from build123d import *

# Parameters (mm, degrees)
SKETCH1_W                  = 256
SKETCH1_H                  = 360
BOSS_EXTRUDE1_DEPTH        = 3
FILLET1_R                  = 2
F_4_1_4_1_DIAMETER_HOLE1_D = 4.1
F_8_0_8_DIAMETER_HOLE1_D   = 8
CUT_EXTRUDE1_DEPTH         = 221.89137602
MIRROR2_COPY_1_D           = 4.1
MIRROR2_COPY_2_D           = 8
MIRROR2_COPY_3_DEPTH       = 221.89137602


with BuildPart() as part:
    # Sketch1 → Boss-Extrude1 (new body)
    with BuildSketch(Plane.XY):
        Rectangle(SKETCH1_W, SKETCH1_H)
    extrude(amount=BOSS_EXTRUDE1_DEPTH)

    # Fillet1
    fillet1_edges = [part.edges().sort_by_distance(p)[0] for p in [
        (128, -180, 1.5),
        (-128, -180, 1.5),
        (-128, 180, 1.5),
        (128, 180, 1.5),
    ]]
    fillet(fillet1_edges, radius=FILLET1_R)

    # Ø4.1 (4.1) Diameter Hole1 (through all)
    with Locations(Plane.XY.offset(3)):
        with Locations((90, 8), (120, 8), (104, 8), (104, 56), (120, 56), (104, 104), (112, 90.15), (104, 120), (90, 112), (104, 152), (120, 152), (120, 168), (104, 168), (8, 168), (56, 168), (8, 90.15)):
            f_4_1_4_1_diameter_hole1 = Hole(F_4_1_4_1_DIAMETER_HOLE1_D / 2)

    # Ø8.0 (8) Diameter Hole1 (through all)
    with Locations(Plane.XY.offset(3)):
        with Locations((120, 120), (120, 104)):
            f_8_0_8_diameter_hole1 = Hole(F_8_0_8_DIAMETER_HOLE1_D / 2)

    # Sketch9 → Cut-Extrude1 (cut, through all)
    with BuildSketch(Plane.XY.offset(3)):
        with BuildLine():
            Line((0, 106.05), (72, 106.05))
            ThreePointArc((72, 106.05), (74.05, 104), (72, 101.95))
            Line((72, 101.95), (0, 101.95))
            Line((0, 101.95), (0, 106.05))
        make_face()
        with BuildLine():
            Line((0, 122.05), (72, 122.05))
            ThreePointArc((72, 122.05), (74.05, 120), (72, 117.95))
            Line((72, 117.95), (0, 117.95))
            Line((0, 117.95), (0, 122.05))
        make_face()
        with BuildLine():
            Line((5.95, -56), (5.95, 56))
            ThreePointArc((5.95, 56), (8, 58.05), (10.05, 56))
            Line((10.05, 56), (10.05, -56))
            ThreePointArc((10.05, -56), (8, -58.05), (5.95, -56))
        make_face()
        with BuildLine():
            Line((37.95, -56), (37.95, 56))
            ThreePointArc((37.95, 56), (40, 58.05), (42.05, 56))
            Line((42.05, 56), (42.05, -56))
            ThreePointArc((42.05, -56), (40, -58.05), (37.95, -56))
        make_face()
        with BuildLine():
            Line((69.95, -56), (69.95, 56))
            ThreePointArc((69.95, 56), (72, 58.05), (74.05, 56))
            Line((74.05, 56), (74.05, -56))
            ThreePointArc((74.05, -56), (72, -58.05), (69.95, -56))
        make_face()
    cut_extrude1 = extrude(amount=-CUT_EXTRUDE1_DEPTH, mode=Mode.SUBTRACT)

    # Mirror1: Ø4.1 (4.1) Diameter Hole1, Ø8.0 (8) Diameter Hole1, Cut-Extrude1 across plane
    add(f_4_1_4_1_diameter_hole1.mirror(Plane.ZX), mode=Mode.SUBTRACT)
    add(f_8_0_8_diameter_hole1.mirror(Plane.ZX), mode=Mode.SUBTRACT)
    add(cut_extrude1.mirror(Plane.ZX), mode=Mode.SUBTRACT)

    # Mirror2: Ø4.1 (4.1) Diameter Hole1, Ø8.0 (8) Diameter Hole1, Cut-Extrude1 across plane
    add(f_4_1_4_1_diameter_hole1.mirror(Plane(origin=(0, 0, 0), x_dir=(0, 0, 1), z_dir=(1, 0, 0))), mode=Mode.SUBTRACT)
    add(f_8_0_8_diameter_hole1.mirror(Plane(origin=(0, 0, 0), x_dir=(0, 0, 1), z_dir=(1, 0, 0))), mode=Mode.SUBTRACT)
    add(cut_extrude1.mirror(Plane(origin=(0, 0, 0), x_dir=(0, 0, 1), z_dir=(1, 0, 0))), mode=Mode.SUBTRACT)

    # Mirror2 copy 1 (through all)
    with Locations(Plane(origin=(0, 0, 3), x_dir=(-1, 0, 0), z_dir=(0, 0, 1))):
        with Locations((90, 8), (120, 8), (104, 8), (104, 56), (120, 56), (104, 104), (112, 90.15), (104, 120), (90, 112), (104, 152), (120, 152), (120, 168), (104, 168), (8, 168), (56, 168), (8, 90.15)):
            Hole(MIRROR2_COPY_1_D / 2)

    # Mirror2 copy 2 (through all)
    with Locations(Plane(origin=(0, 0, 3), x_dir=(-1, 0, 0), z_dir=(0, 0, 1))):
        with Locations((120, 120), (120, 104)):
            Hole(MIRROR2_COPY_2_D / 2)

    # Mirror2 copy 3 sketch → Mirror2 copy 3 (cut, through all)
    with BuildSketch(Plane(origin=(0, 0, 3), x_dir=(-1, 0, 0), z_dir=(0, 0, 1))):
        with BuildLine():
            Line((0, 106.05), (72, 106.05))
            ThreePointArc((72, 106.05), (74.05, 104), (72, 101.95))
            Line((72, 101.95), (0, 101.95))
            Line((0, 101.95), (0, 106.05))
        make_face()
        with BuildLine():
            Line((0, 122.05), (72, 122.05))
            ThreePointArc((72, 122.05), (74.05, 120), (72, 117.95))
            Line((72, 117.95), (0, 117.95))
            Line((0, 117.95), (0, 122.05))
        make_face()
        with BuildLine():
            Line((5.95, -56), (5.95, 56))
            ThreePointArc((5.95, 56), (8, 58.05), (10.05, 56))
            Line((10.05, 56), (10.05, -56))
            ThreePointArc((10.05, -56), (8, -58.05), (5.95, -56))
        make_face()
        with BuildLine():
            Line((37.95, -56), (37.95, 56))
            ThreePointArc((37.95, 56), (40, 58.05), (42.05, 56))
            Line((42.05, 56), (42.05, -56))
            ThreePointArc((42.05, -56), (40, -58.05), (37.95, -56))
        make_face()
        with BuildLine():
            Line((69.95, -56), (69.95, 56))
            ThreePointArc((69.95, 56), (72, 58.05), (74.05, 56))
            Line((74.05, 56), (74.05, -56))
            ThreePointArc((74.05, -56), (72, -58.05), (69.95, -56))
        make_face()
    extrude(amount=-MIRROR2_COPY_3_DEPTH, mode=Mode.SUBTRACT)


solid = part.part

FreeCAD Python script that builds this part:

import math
import FreeCAD as App
import Part
import Sketcher
from FreeCAD import Vector


def edges_at(feature, points):
    """Names of the edges that pass closest to the given points."""
    edges = feature.Shape.Edges
    near = lambda p: min(range(len(edges)), key=lambda i: edges[i].distToShape(Part.Vertex(*p))[0])
    return sorted({f"Edge{near(p) + 1}" for p in points})

doc = App.newDocument("Part")
params = doc.addObject("Spreadsheet::Sheet", "Params")
for row, (alias, value) in enumerate([
    ("sketch1_width", "256 mm"),
    ("sketch1_height", "360 mm"),
    ("pad1_length", "3 mm"),
    ("fillet_radius", "2 mm"),
    ("sketch2_diameter", "4.1 mm"),
    ("hole_diameter", "4.1 mm"),
    ("sketch3_diameter", "8 mm"),
    ("hole2_diameter", "8 mm"),
    ("sketch4_width", "72 mm"),
    ("sketch4_height", "112 mm"),
    ("sketch4_radius", "2.05 mm"),
    ("sketch5_diameter", "4.1 mm"),
    ("hole3_diameter", "4.1 mm"),
    ("sketch6_diameter", "8 mm"),
    ("hole4_diameter", "8 mm"),
    ("sketch7_width", "72 mm"),
    ("sketch7_height", "112 mm"),
    ("sketch7_radius", "2.05 mm"),
], start=1):
    params.set(f"A{row}", alias)
    params.set(f"B{row}", "=" + value)
    params.setAlias(f"B{row}", alias)

body = doc.addObject("PartDesign::Body", "Body")

# Sketch on XY plane
sketch1 = body.newObject("Sketcher::SketchObject", "Sketch")
sketch1.AttachmentSupport = (doc.getObject("XY_Plane"), [""])
sketch1.MapMode = "FlatFace"
sketch1.addGeometry(Part.LineSegment(Vector(-128, 180, 0), Vector(-128, -180, 0)), False)
sketch1.addGeometry(Part.LineSegment(Vector(-128, -180, 0), Vector(128, -180, 0)), False)
sketch1.addGeometry(Part.LineSegment(Vector(128, -180, 0), Vector(128, 180, 0)), False)
sketch1.addGeometry(Part.LineSegment(Vector(128, 180, 0), Vector(-128, 180, 0)), False)
sketch1.addConstraint(Sketcher.Constraint("Coincident", 0, 2, 1, 1))
sketch1.addConstraint(Sketcher.Constraint("Coincident", 1, 2, 2, 1))
sketch1.addConstraint(Sketcher.Constraint("Coincident", 2, 2, 3, 1))
sketch1.addConstraint(Sketcher.Constraint("Coincident", 3, 2, 0, 1))
sketch1.addConstraint(Sketcher.Constraint("Vertical", 0))
sketch1.addConstraint(Sketcher.Constraint("Horizontal", 1))
sketch1.addConstraint(Sketcher.Constraint("Vertical", 2))
sketch1.addConstraint(Sketcher.Constraint("Horizontal", 3))
sketch1.addConstraint(Sketcher.Constraint("Symmetric", 0, 2, 2, 2, -1, 1))
sketch1.addConstraint(Sketcher.Constraint("DistanceX", 1, 1, 1, 2, 256.0))
sketch1.addConstraint(Sketcher.Constraint("DistanceY", 0, 2, 0, 1, 360.0))
sketch1.setExpression("Constraints[9]", "Params.sketch1_width")
sketch1.setExpression("Constraints[10]", "Params.sketch1_height")
pad1 = body.newObject("PartDesign::Pad", "Pad")
pad1.Profile = sketch1
pad1.setExpression("Length", "Params.pad1_length")
doc.recompute()

fillet = body.newObject("PartDesign::Fillet", "Fillet")
fillet.Base = (pad1, edges_at(pad1, [
    (128, -180, 1.5),
    (-128, -180, 1.5),
    (-128, 180, 1.5),
    (128, 180, 1.5),
]))
fillet.setExpression("Radius", "Params.fillet_radius")

# Sketch on XY plane
sketch2 = body.newObject("Sketcher::SketchObject", "Sketch001")
sketch2.AttachmentSupport = (doc.getObject("XY_Plane"), [""])
sketch2.MapMode = "FlatFace"
sketch2.AttachmentOffset = App.Placement(Vector(0, 0, 3), App.Rotation())
sketch2.addGeometry(Part.Circle(Vector(90, 8, 0), Vector(0, 0, 1), 2), False)
sketch2.addGeometry(Part.Circle(Vector(120, 8, 0), Vector(0, 0, 1), 2), False)
sketch2.addGeometry(Part.Circle(Vector(104, 8, 0), Vector(0, 0, 1), 2), False)
sketch2.addGeometry(Part.Circle(Vector(104, 56, 0), Vector(0, 0, 1), 2), False)
sketch2.addGeometry(Part.Circle(Vector(120, 56, 0), Vector(0, 0, 1), 2), False)
sketch2.addGeometry(Part.Circle(Vector(104, 104, 0), Vector(0, 0, 1), 2), False)
sketch2.addGeometry(Part.Circle(Vector(112, 90.2, 0), Vector(0, 0, 1), 2), False)
sketch2.addGeometry(Part.Circle(Vector(104, 120, 0), Vector(0, 0, 1), 2), False)
sketch2.addGeometry(Part.Circle(Vector(90, 112, 0), Vector(0, 0, 1), 2), False)
sketch2.addGeometry(Part.Circle(Vector(104, 152, 0), Vector(0, 0, 1), 2), False)
sketch2.addGeometry(Part.Circle(Vector(120, 152, 0), Vector(0, 0, 1), 2), False)
sketch2.addGeometry(Part.Circle(Vector(120, 168, 0), Vector(0, 0, 1), 2), False)
sketch2.addGeometry(Part.Circle(Vector(104, 168, 0), Vector(0, 0, 1), 2), False)
sketch2.addGeometry(Part.Circle(Vector(8, 168, 0), Vector(0, 0, 1), 2), False)
sketch2.addGeometry(Part.Circle(Vector(56, 168, 0), Vector(0, 0, 1), 2), False)
sketch2.addGeometry(Part.Circle(Vector(8, 90.2, 0), Vector(0, 0, 1), 2), False)
sketch2.addConstraint(Sketcher.Constraint("Equal", 0, 1))
sketch2.addConstraint(Sketcher.Constraint("Equal", 1, 2))
sketch2.addConstraint(Sketcher.Constraint("Equal", 2, 3))
sketch2.addConstraint(Sketcher.Constraint("Equal", 3, 4))
sketch2.addConstraint(Sketcher.Constraint("Equal", 4, 5))
sketch2.addConstraint(Sketcher.Constraint("Equal", 5, 6))
sketch2.addConstraint(Sketcher.Constraint("Equal", 6, 7))
sketch2.addConstraint(Sketcher.Constraint("Equal", 7, 8))
sketch2.addConstraint(Sketcher.Constraint("Equal", 8, 9))
sketch2.addConstraint(Sketcher.Constraint("Equal", 9, 10))
sketch2.addConstraint(Sketcher.Constraint("Equal", 10, 11))
sketch2.addConstraint(Sketcher.Constraint("Equal", 11, 12))
sketch2.addConstraint(Sketcher.Constraint("Equal", 12, 13))
sketch2.addConstraint(Sketcher.Constraint("Equal", 13, 14))
sketch2.addConstraint(Sketcher.Constraint("Equal", 14, 15))
sketch2.addConstraint(Sketcher.Constraint("Horizontal", 0, 3, 1, 3))
sketch2.addConstraint(Sketcher.Constraint("Horizontal", 1, 3, 2, 3))
sketch2.addConstraint(Sketcher.Constraint("Horizontal", 3, 3, 4, 3))
sketch2.addConstraint(Sketcher.Constraint("Horizontal", 9, 3, 10, 3))
sketch2.addConstraint(Sketcher.Constraint("Horizontal", 11, 3, 12, 3))
sketch2.addConstraint(Sketcher.Constraint("Horizontal", 12, 3, 13, 3))
sketch2.addConstraint(Sketcher.Constraint("Horizontal", 13, 3, 14, 3))
sketch2.addConstraint(Sketcher.Constraint("Horizontal", 6, 3, 15, 3))
sketch2.addConstraint(Sketcher.Constraint("Vertical", 2, 3, 3, 3))
sketch2.addConstraint(Sketcher.Constraint("Vertical", 1, 3, 4, 3))
sketch2.addConstraint(Sketcher.Constraint("Vertical", 3, 3, 5, 3))
sketch2.addConstraint(Sketcher.Constraint("Vertical", 5, 3, 7, 3))
sketch2.addConstraint(Sketcher.Constraint("Vertical", 0, 3, 8, 3))
sketch2.addConstraint(Sketcher.Constraint("Vertical", 7, 3, 9, 3))
sketch2.addConstraint(Sketcher.Constraint("Vertical", 4, 3, 10, 3))
sketch2.addConstraint(Sketcher.Constraint("Vertical", 10, 3, 11, 3))
sketch2.addConstraint(Sketcher.Constraint("Vertical", 9, 3, 12, 3))
sketch2.addConstraint(Sketcher.Constraint("Vertical", 13, 3, 15, 3))
sketch2.addConstraint(Sketcher.Constraint("Diameter", 0, 4.1))
sketch2.addConstraint(Sketcher.Constraint("DistanceX", -1, 1, 0, 3, 90.0))
sketch2.addConstraint(Sketcher.Constraint("DistanceY", -1, 1, 0, 3, 8.0))
sketch2.addConstraint(Sketcher.Constraint("DistanceX", -1, 1, 1, 3, 120.0))
sketch2.addConstraint(Sketcher.Constraint("DistanceX", -1, 1, 2, 3, 104.0))
sketch2.addConstraint(Sketcher.Constraint("DistanceY", -1, 1, 3, 3, 56.0))
sketch2.addConstraint(Sketcher.Constraint("DistanceY", -1, 1, 5, 3, 104.0))
sketch2.addConstraint(Sketcher.Constraint("DistanceX", -1, 1, 6, 3, 112.0))
sketch2.addConstraint(Sketcher.Constraint("DistanceY", -1, 1, 7, 3, 120.0))
sketch2.addConstraint(Sketcher.Constraint("DistanceY", -1, 1, 8, 3, 112.0))
sketch2.addConstraint(Sketcher.Constraint("DistanceY", -1, 1, 9, 3, 152.0))
sketch2.addConstraint(Sketcher.Constraint("DistanceY", -1, 1, 11, 3, 168.0))
sketch2.addConstraint(Sketcher.Constraint("DistanceX", -1, 1, 13, 3, 8.0))
sketch2.addConstraint(Sketcher.Constraint("DistanceX", -1, 1, 14, 3, 56.0))
sketch2.addConstraint(Sketcher.Constraint("DistanceY", -1, 1, 6, 3, 90.15))
sketch2.setExpression("Constraints[33]", "Params.sketch2_diameter")
doc.recompute()
hole = body.newObject("PartDesign::Hole", "Hole")
hole.Profile = sketch2
hole.ThreadType = "None"
hole.setExpression("Diameter", "Params.hole_diameter")
hole.DepthType = "ThroughAll"

# Sketch on XY plane
sketch3 = body.newObject("Sketcher::SketchObject", "Sketch002")
sketch3.AttachmentSupport = (doc.getObject("XY_Plane"), [""])
sketch3.MapMode = "FlatFace"
sketch3.AttachmentOffset = App.Placement(Vector(0, 0, 3), App.Rotation())
sketch3.addGeometry(Part.Circle(Vector(120, 120, 0), Vector(0, 0, 1), 4), False)
sketch3.addGeometry(Part.Circle(Vector(120, 104, 0), Vector(0, 0, 1), 4), False)
sketch3.addConstraint(Sketcher.Constraint("Equal", 0, 1))
sketch3.addConstraint(Sketcher.Constraint("Vertical", 0, 3, 1, 3))
sketch3.addConstraint(Sketcher.Constraint("Diameter", 0, 8.0))
sketch3.addConstraint(Sketcher.Constraint("DistanceX", -1, 1, 0, 3, 120.0))
sketch3.addConstraint(Sketcher.Constraint("DistanceY", -1, 1, 0, 3, 120.0))
sketch3.addConstraint(Sketcher.Constraint("DistanceY", -1, 1, 1, 3, 104.0))
sketch3.setExpression("Constraints[2]", "Params.sketch3_diameter")
doc.recompute()
hole2 = body.newObject("PartDesign::Hole", "Hole001")
hole2.Profile = sketch3
hole2.ThreadType = "None"
hole2.setExpression("Diameter", "Params.hole2_diameter")
hole2.DepthType = "ThroughAll"

# Sketch on XY plane
sketch4 = body.newObject("Sketcher::SketchObject", "Sketch003")
sketch4.AttachmentSupport = (doc.getObject("XY_Plane"), [""])
sketch4.MapMode = "FlatFace"
sketch4.AttachmentOffset = App.Placement(Vector(0, 0, 3), App.Rotation())
sketch4.addGeometry(Part.LineSegment(Vector(72, 106, 0), Vector(0, 106, 0)), False)
sketch4.addGeometry(Part.LineSegment(Vector(0, 106, 0), Vector(0, 102, 0)), False)
sketch4.addGeometry(Part.LineSegment(Vector(0, 102, 0), Vector(72, 102, 0)), False)
sketch4.addGeometry(Part.ArcOfCircle(Part.Circle(Vector(72, 104, 0), Vector(0, 0, 1), 2), math.radians(-90), math.radians(90)), False)
sketch4.addGeometry(Part.LineSegment(Vector(72, 122, 0), Vector(0, 122, 0)), False)
sketch4.addGeometry(Part.LineSegment(Vector(0, 122, 0), Vector(0, 118, 0)), False)
sketch4.addGeometry(Part.LineSegment(Vector(0, 118, 0), Vector(72, 118, 0)), False)
sketch4.addGeometry(Part.ArcOfCircle(Part.Circle(Vector(72, 120, 0), Vector(0, 0, 1), 2), math.radians(-90), math.radians(90)), False)
sketch4.addGeometry(Part.LineSegment(Vector(6, 56, 0), Vector(6, -56, 0)), False)
sketch4.addGeometry(Part.ArcOfCircle(Part.Circle(Vector(8, -56, 0), Vector(0, 0, 1), 2), math.radians(180), math.radians(360)), False)
sketch4.addGeometry(Part.LineSegment(Vector(10.1, -56, 0), Vector(10.1, 56, 0)), False)
sketch4.addGeometry(Part.ArcOfCircle(Part.Circle(Vector(8, 56, 0), Vector(0, 0, 1), 2), math.radians(0), math.radians(180)), False)
sketch4.addGeometry(Part.LineSegment(Vector(38, 56, 0), Vector(38, -56, 0)), False)
sketch4.addGeometry(Part.ArcOfCircle(Part.Circle(Vector(40, -56, 0), Vector(0, 0, 1), 2), math.radians(180), math.radians(360)), False)
sketch4.addGeometry(Part.LineSegment(Vector(42, -56, 0), Vector(42, 56, 0)), False)
sketch4.addGeometry(Part.ArcOfCircle(Part.Circle(Vector(40, 56, 0), Vector(0, 0, 1), 2), math.radians(0), math.radians(180)), False)
sketch4.addGeometry(Part.LineSegment(Vector(70, 56, 0), Vector(70, -56, 0)), False)
sketch4.addGeometry(Part.ArcOfCircle(Part.Circle(Vector(72, -56, 0), Vector(0, 0, 1), 2), math.radians(180), math.radians(360)), False)
sketch4.addGeometry(Part.LineSegment(Vector(74, -56, 0), Vector(74, 56, 0)), False)
sketch4.addGeometry(Part.ArcOfCircle(Part.Circle(Vector(72, 56, 0), Vector(0, 0, 1), 2), math.radians(0), math.radians(180)), False)
sketch4.addConstraint(Sketcher.Constraint("Coincident", 0, 2, 1, 1))
sketch4.addConstraint(Sketcher.Constraint("Coincident", 1, 2, 2, 1))
sketch4.addConstraint(Sketcher.Constraint("Tangent", 2, 2, 3, 1))
sketch4.addConstraint(Sketcher.Constraint("Tangent", 3, 2, 0, 1))
sketch4.addConstraint(Sketcher.Constraint("Coincident", 4, 2, 5, 1))
sketch4.addConstraint(Sketcher.Constraint("Coincident", 5, 2, 6, 1))
sketch4.addConstraint(Sketcher.Constraint("Tangent", 6, 2, 7, 1))
sketch4.addConstraint(Sketcher.Constraint("Tangent", 7, 2, 4, 1))
sketch4.addConstraint(Sketcher.Constraint("Tangent", 8, 2, 9, 1))
sketch4.addConstraint(Sketcher.Constraint("Tangent", 9, 2, 10, 1))
sketch4.addConstraint(Sketcher.Constraint("Tangent", 10, 2, 11, 1))
sketch4.addConstraint(Sketcher.Constraint("Tangent", 11, 2, 8, 1))
sketch4.addConstraint(Sketcher.Constraint("Tangent", 12, 2, 13, 1))
sketch4.addConstraint(Sketcher.Constraint("Tangent", 13, 2, 14, 1))
sketch4.addConstraint(Sketcher.Constraint("Tangent", 14, 2, 15, 1))
sketch4.addConstraint(Sketcher.Constraint("Tangent", 15, 2, 12, 1))
sketch4.addConstraint(Sketcher.Constraint("Tangent", 16, 2, 17, 1))
sketch4.addConstraint(Sketcher.Constraint("Tangent", 17, 2, 18, 1))
sketch4.addConstraint(Sketcher.Constraint("Tangent", 18, 2, 19, 1))
sketch4.addConstraint(Sketcher.Constraint("Tangent", 19, 2, 16, 1))
sketch4.addConstraint(Sketcher.Constraint("Horizontal", 0))
sketch4.addConstraint(Sketcher.Constraint("Vertical", 1))
sketch4.addConstraint(Sketcher.Constraint("Horizontal", 2))
sketch4.addConstraint(Sketcher.Constraint("Horizontal", 4))
sketch4.addConstraint(Sketcher.Constraint("Vertical", 5))
sketch4.addConstraint(Sketcher.Constraint("Horizontal", 6))
sketch4.addConstraint(Sketcher.Constraint("Vertical", 8))
sketch4.addConstraint(Sketcher.Constraint("Vertical", 10))
sketch4.addConstraint(Sketcher.Constraint("Vertical", 12))
sketch4.addConstraint(Sketcher.Constraint("Vertical", 14))
sketch4.addConstraint(Sketcher.Constraint("Vertical", 16))
sketch4.addConstraint(Sketcher.Constraint("Vertical", 18))
sketch4.addConstraint(Sketcher.Constraint("Equal", 3, 7))
sketch4.addConstraint(Sketcher.Constraint("Equal", 7, 9))
sketch4.addConstraint(Sketcher.Constraint("Equal", 11, 13))
sketch4.addConstraint(Sketcher.Constraint("Equal", 15, 17))
sketch4.addConstraint(Sketcher.Constraint("PointOnObject", 0, 2, -2))
sketch4.addConstraint(Sketcher.Constraint("PointOnObject", 4, 2, -2))
sketch4.addConstraint(Sketcher.Constraint("Horizontal", 9, 3, 13, 3))
sketch4.addConstraint(Sketcher.Constraint("Horizontal", 11, 3, 15, 3))
sketch4.addConstraint(Sketcher.Constraint("Horizontal", 13, 3, 17, 3))
sketch4.addConstraint(Sketcher.Constraint("Horizontal", 15, 3, 19, 3))
sketch4.addConstraint(Sketcher.Constraint("Vertical", 3, 3, 7, 3))
sketch4.addConstraint(Sketcher.Constraint("Vertical", 7, 3, 17, 3))
sketch4.addConstraint(Sketcher.Constraint("DistanceX", 0, 2, 0, 1, 72.0))
sketch4.addConstraint(Sketcher.Constraint("DistanceY", 8, 2, 8, 1, 112.0))
sketch4.addConstraint(Sketcher.Constraint("Radius", 3, 2.05))
sketch4.addConstraint(Sketcher.Constraint("DistanceY", -1, 1, 3, 3, 104.0))
sketch4.addConstraint(Sketcher.Constraint("DistanceY", -1, 1, 7, 3, 120.0))
sketch4.addConstraint(Sketcher.Constraint("DistanceX", -1, 1, 9, 3, 8.0))
sketch4.addConstraint(Sketcher.Constraint("DistanceY", 9, 3, -1, 1, 56.0))
sketch4.addConstraint(Sketcher.Constraint("DistanceX", -1, 1, 13, 3, 40.0))
sketch4.setExpression("Constraints[44]", "Params.sketch4_width")
sketch4.setExpression("Constraints[45]", "Params.sketch4_height")
sketch4.setExpression("Constraints[46]", "Params.sketch4_radius")
pocket1 = body.newObject("PartDesign::Pocket", "Pocket")
pocket1.Profile = sketch4
pocket1.Type = "ThroughAll"
doc.recompute()

mirrored = body.newObject("PartDesign::Mirrored", "Mirrored")
mirrored.Originals = [hole, hole2, pocket1]
mirrored.MirrorPlane = (doc.getObject("XZ_Plane"), [""])
body.Tip = mirrored
doc.recompute()

mirrored2 = body.newObject("PartDesign::Mirrored", "Mirrored001")
mirrored2.Originals = [hole, hole2, pocket1]
mirrored2.MirrorPlane = (doc.getObject("YZ_Plane"), [""])
body.Tip = mirrored2

# Sketch on XY plane
sketch5 = body.newObject("Sketcher::SketchObject", "Sketch004")
sketch5.AttachmentSupport = (doc.getObject("XY_Plane"), [""])
sketch5.MapMode = "FlatFace"
sketch5.AttachmentOffset = App.Placement(Vector(0, 0, 3), App.Rotation())
sketch5.addGeometry(Part.Circle(Vector(-90, -8, 0), Vector(0, 0, 1), 2), False)
sketch5.addGeometry(Part.Circle(Vector(-120, -8, 0), Vector(0, 0, 1), 2), False)
sketch5.addGeometry(Part.Circle(Vector(-104, -8, 0), Vector(0, 0, 1), 2), False)
sketch5.addGeometry(Part.Circle(Vector(-104, -56, 0), Vector(0, 0, 1), 2), False)
sketch5.addGeometry(Part.Circle(Vector(-120, -56, 0), Vector(0, 0, 1), 2), False)
sketch5.addGeometry(Part.Circle(Vector(-104, -104, 0), Vector(0, 0, 1), 2), False)
sketch5.addGeometry(Part.Circle(Vector(-112, -90.2, 0), Vector(0, 0, 1), 2), False)
sketch5.addGeometry(Part.Circle(Vector(-104, -120, 0), Vector(0, 0, 1), 2), False)
sketch5.addGeometry(Part.Circle(Vector(-90, -112, 0), Vector(0, 0, 1), 2), False)
sketch5.addGeometry(Part.Circle(Vector(-104, -152, 0), Vector(0, 0, 1), 2), False)
sketch5.addGeometry(Part.Circle(Vector(-120, -152, 0), Vector(0, 0, 1), 2), False)
sketch5.addGeometry(Part.Circle(Vector(-120, -168, 0), Vector(0, 0, 1), 2), False)
sketch5.addGeometry(Part.Circle(Vector(-104, -168, 0), Vector(0, 0, 1), 2), False)
sketch5.addGeometry(Part.Circle(Vector(-8, -168, 0), Vector(0, 0, 1), 2), False)
sketch5.addGeometry(Part.Circle(Vector(-56, -168, 0), Vector(0, 0, 1), 2), False)
sketch5.addGeometry(Part.Circle(Vector(-8, -90.2, 0), Vector(0, 0, 1), 2), False)
sketch5.addConstraint(Sketcher.Constraint("Equal", 0, 1))
sketch5.addConstraint(Sketcher.Constraint("Equal", 1, 2))
sketch5.addConstraint(Sketcher.Constraint("Equal", 2, 3))
sketch5.addConstraint(Sketcher.Constraint("Equal", 3, 4))
sketch5.addConstraint(Sketcher.Constraint("Equal", 4, 5))
sketch5.addConstraint(Sketcher.Constraint("Equal", 5, 6))
sketch5.addConstraint(Sketcher.Constraint("Equal", 6, 7))
sketch5.addConstraint(Sketcher.Constraint("Equal", 7, 8))
sketch5.addConstraint(Sketcher.Constraint("Equal", 8, 9))
sketch5.addConstraint(Sketcher.Constraint("Equal", 9, 10))
sketch5.addConstraint(Sketcher.Constraint("Equal", 10, 11))
sketch5.addConstraint(Sketcher.Constraint("Equal", 11, 12))
sketch5.addConstraint(Sketcher.Constraint("Equal", 12, 13))
sketch5.addConstraint(Sketcher.Constraint("Equal", 13, 14))
sketch5.addConstraint(Sketcher.Constraint("Equal", 14, 15))
sketch5.addConstraint(Sketcher.Constraint("Horizontal", 0, 3, 1, 3))
sketch5.addConstraint(Sketcher.Constraint("Horizontal", 1, 3, 2, 3))
sketch5.addConstraint(Sketcher.Constraint("Horizontal", 3, 3, 4, 3))
sketch5.addConstraint(Sketcher.Constraint("Horizontal", 9, 3, 10, 3))
sketch5.addConstraint(Sketcher.Constraint("Horizontal", 11, 3, 12, 3))
sketch5.addConstraint(Sketcher.Constraint("Horizontal", 12, 3, 13, 3))
sketch5.addConstraint(Sketcher.Constraint("Horizontal", 13, 3, 14, 3))
sketch5.addConstraint(Sketcher.Constraint("Horizontal", 6, 3, 15, 3))
sketch5.addConstraint(Sketcher.Constraint("Vertical", 2, 3, 3, 3))
sketch5.addConstraint(Sketcher.Constraint("Vertical", 1, 3, 4, 3))
sketch5.addConstraint(Sketcher.Constraint("Vertical", 3, 3, 5, 3))
sketch5.addConstraint(Sketcher.Constraint("Vertical", 5, 3, 7, 3))
sketch5.addConstraint(Sketcher.Constraint("Vertical", 0, 3, 8, 3))
sketch5.addConstraint(Sketcher.Constraint("Vertical", 7, 3, 9, 3))
sketch5.addConstraint(Sketcher.Constraint("Vertical", 4, 3, 10, 3))
sketch5.addConstraint(Sketcher.Constraint("Vertical", 10, 3, 11, 3))
sketch5.addConstraint(Sketcher.Constraint("Vertical", 9, 3, 12, 3))
sketch5.addConstraint(Sketcher.Constraint("Vertical", 13, 3, 15, 3))
sketch5.addConstraint(Sketcher.Constraint("Diameter", 0, 4.1))
sketch5.addConstraint(Sketcher.Constraint("DistanceX", 0, 3, -1, 1, 90.0))
sketch5.addConstraint(Sketcher.Constraint("DistanceY", 0, 3, -1, 1, 8.0))
sketch5.addConstraint(Sketcher.Constraint("DistanceX", 1, 3, -1, 1, 120.0))
sketch5.addConstraint(Sketcher.Constraint("DistanceX", 2, 3, -1, 1, 104.0))
sketch5.addConstraint(Sketcher.Constraint("DistanceY", 3, 3, -1, 1, 56.0))
sketch5.addConstraint(Sketcher.Constraint("DistanceY", 5, 3, -1, 1, 104.0))
sketch5.addConstraint(Sketcher.Constraint("DistanceX", 6, 3, -1, 1, 112.0))
sketch5.addConstraint(Sketcher.Constraint("DistanceY", 7, 3, -1, 1, 120.0))
sketch5.addConstraint(Sketcher.Constraint("DistanceY", 8, 3, -1, 1, 112.0))
sketch5.addConstraint(Sketcher.Constraint("DistanceY", 9, 3, -1, 1, 152.0))
sketch5.addConstraint(Sketcher.Constraint("DistanceY", 11, 3, -1, 1, 168.0))
sketch5.addConstraint(Sketcher.Constraint("DistanceX", 13, 3, -1, 1, 8.0))
sketch5.addConstraint(Sketcher.Constraint("DistanceX", 14, 3, -1, 1, 56.0))
sketch5.addConstraint(Sketcher.Constraint("DistanceY", 6, 3, -1, 1, 90.15))
sketch5.setExpression("Constraints[33]", "Params.sketch5_diameter")
doc.recompute()
hole3 = body.newObject("PartDesign::Hole", "Hole002")
hole3.Profile = sketch5
hole3.ThreadType = "None"
hole3.setExpression("Diameter", "Params.hole3_diameter")
hole3.DepthType = "ThroughAll"

# Sketch on XY plane
sketch6 = body.newObject("Sketcher::SketchObject", "Sketch005")
sketch6.AttachmentSupport = (doc.getObject("XY_Plane"), [""])
sketch6.MapMode = "FlatFace"
sketch6.AttachmentOffset = App.Placement(Vector(0, 0, 3), App.Rotation())
sketch6.addGeometry(Part.Circle(Vector(-120, -120, 0), Vector(0, 0, 1), 4), False)
sketch6.addGeometry(Part.Circle(Vector(-120, -104, 0), Vector(0, 0, 1), 4), False)
sketch6.addConstraint(Sketcher.Constraint("Equal", 0, 1))
sketch6.addConstraint(Sketcher.Constraint("Vertical", 0, 3, 1, 3))
sketch6.addConstraint(Sketcher.Constraint("Diameter", 0, 8.0))
sketch6.addConstraint(Sketcher.Constraint("DistanceX", 0, 3, -1, 1, 120.0))
sketch6.addConstraint(Sketcher.Constraint("DistanceY", 0, 3, -1, 1, 120.0))
sketch6.addConstraint(Sketcher.Constraint("DistanceY", 1, 3, -1, 1, 104.0))
sketch6.setExpression("Constraints[2]", "Params.sketch6_diameter")
doc.recompute()
hole4 = body.newObject("PartDesign::Hole", "Hole003")
hole4.Profile = sketch6
hole4.ThreadType = "None"
hole4.setExpression("Diameter", "Params.hole4_diameter")
hole4.DepthType = "ThroughAll"

# Sketch on XY plane
sketch7 = body.newObject("Sketcher::SketchObject", "Sketch006")
sketch7.AttachmentSupport = (doc.getObject("XY_Plane"), [""])
sketch7.MapMode = "FlatFace"
sketch7.AttachmentOffset = App.Placement(Vector(0, 0, 3), App.Rotation())
sketch7.addGeometry(Part.LineSegment(Vector(-72, -106, 0), Vector(0, -106, 0)), False)
sketch7.addGeometry(Part.LineSegment(Vector(0, -106, 0), Vector(0, -102, 0)), False)
sketch7.addGeometry(Part.LineSegment(Vector(0, -102, 0), Vector(-72, -102, 0)), False)
sketch7.addGeometry(Part.ArcOfCircle(Part.Circle(Vector(-72, -104, 0), Vector(0, 0, 1), 2), math.radians(90), math.radians(270)), False)
sketch7.addGeometry(Part.LineSegment(Vector(-72, -122, 0), Vector(0, -122, 0)), False)
sketch7.addGeometry(Part.LineSegment(Vector(0, -122, 0), Vector(0, -118, 0)), False)
sketch7.addGeometry(Part.LineSegment(Vector(0, -118, 0), Vector(-72, -118, 0)), False)
sketch7.addGeometry(Part.ArcOfCircle(Part.Circle(Vector(-72, -120, 0), Vector(0, 0, 1), 2), math.radians(90), math.radians(270)), False)
sketch7.addGeometry(Part.LineSegment(Vector(-6, -56, 0), Vector(-6, 56, 0)), False)
sketch7.addGeometry(Part.ArcOfCircle(Part.Circle(Vector(-8, 56, 0), Vector(0, 0, 1), 2), math.radians(0), math.radians(180)), False)
sketch7.addGeometry(Part.LineSegment(Vector(-10.1, 56, 0), Vector(-10.1, -56, 0)), False)
sketch7.addGeometry(Part.ArcOfCircle(Part.Circle(Vector(-8, -56, 0), Vector(0, 0, 1), 2), math.radians(180), math.radians(360)), False)
sketch7.addGeometry(Part.LineSegment(Vector(-38, -56, 0), Vector(-38, 56, 0)), False)
sketch7.addGeometry(Part.ArcOfCircle(Part.Circle(Vector(-40, 56, 0), Vector(0, 0, 1), 2), math.radians(0), math.radians(180)), False)
sketch7.addGeometry(Part.LineSegment(Vector(-42, 56, 0), Vector(-42, -56, 0)), False)
sketch7.addGeometry(Part.ArcOfCircle(Part.Circle(Vector(-40, -56, 0), Vector(0, 0, 1), 2), math.radians(180), math.radians(360)), False)
sketch7.addGeometry(Part.LineSegment(Vector(-70, -56, 0), Vector(-70, 56, 0)), False)
sketch7.addGeometry(Part.ArcOfCircle(Part.Circle(Vector(-72, 56, 0), Vector(0, 0, 1), 2), math.radians(0), math.radians(180)), False)
sketch7.addGeometry(Part.LineSegment(Vector(-74, 56, 0), Vector(-74, -56, 0)), False)
sketch7.addGeometry(Part.ArcOfCircle(Part.Circle(Vector(-72, -56, 0), Vector(0, 0, 1), 2), math.radians(180), math.radians(360)), False)
sketch7.addConstraint(Sketcher.Constraint("Coincident", 0, 2, 1, 1))
sketch7.addConstraint(Sketcher.Constraint("Coincident", 1, 2, 2, 1))
sketch7.addConstraint(Sketcher.Constraint("Tangent", 2, 2, 3, 1))
sketch7.addConstraint(Sketcher.Constraint("Tangent", 3, 2, 0, 1))
sketch7.addConstraint(Sketcher.Constraint("Coincident", 4, 2, 5, 1))
sketch7.addConstraint(Sketcher.Constraint("Coincident", 5, 2, 6, 1))
sketch7.addConstraint(Sketcher.Constraint("Tangent", 6, 2, 7, 1))
sketch7.addConstraint(Sketcher.Constraint("Tangent", 7, 2, 4, 1))
sketch7.addConstraint(Sketcher.Constraint("Tangent", 8, 2, 9, 1))
sketch7.addConstraint(Sketcher.Constraint("Tangent", 9, 2, 10, 1))
sketch7.addConstraint(Sketcher.Constraint("Tangent", 10, 2, 11, 1))
sketch7.addConstraint(Sketcher.Constraint("Tangent", 11, 2, 8, 1))
sketch7.addConstraint(Sketcher.Constraint("Tangent", 12, 2, 13, 1))
sketch7.addConstraint(Sketcher.Constraint("Tangent", 13, 2, 14, 1))
sketch7.addConstraint(Sketcher.Constraint("Tangent", 14, 2, 15, 1))
sketch7.addConstraint(Sketcher.Constraint("Tangent", 15, 2, 12, 1))
sketch7.addConstraint(Sketcher.Constraint("Tangent", 16, 2, 17, 1))
sketch7.addConstraint(Sketcher.Constraint("Tangent", 17, 2, 18, 1))
sketch7.addConstraint(Sketcher.Constraint("Tangent", 18, 2, 19, 1))
sketch7.addConstraint(Sketcher.Constraint("Tangent", 19, 2, 16, 1))
sketch7.addConstraint(Sketcher.Constraint("Horizontal", 0))
sketch7.addConstraint(Sketcher.Constraint("Vertical", 1))
sketch7.addConstraint(Sketcher.Constraint("Horizontal", 2))
sketch7.addConstraint(Sketcher.Constraint("Horizontal", 4))
sketch7.addConstraint(Sketcher.Constraint("Vertical", 5))
sketch7.addConstraint(Sketcher.Constraint("Horizontal", 6))
sketch7.addConstraint(Sketcher.Constraint("Vertical", 8))
sketch7.addConstraint(Sketcher.Constraint("Vertical", 10))
sketch7.addConstraint(Sketcher.Constraint("Vertical", 12))
sketch7.addConstraint(Sketcher.Constraint("Vertical", 14))
sketch7.addConstraint(Sketcher.Constraint("Vertical", 16))
sketch7.addConstraint(Sketcher.Constraint("Vertical", 18))
sketch7.addConstraint(Sketcher.Constraint("Equal", 3, 7))
sketch7.addConstraint(Sketcher.Constraint("Equal", 7, 9))
sketch7.addConstraint(Sketcher.Constraint("Equal", 11, 13))
sketch7.addConstraint(Sketcher.Constraint("Equal", 15, 17))
sketch7.addConstraint(Sketcher.Constraint("PointOnObject", 0, 2, -2))
sketch7.addConstraint(Sketcher.Constraint("PointOnObject", 4, 2, -2))
sketch7.addConstraint(Sketcher.Constraint("Horizontal", 9, 3, 13, 3))
sketch7.addConstraint(Sketcher.Constraint("Horizontal", 11, 3, 15, 3))
sketch7.addConstraint(Sketcher.Constraint("Horizontal", 13, 3, 17, 3))
sketch7.addConstraint(Sketcher.Constraint("Horizontal", 15, 3, 19, 3))
sketch7.addConstraint(Sketcher.Constraint("Vertical", 3, 3, 7, 3))
sketch7.addConstraint(Sketcher.Constraint("Vertical", 7, 3, 17, 3))
sketch7.addConstraint(Sketcher.Constraint("DistanceX", 0, 1, 0, 2, 72.0))
sketch7.addConstraint(Sketcher.Constraint("DistanceY", 8, 1, 8, 2, 112.0))
sketch7.addConstraint(Sketcher.Constraint("Radius", 3, 2.05))
sketch7.addConstraint(Sketcher.Constraint("DistanceY", 3, 3, -1, 1, 104.0))
sketch7.addConstraint(Sketcher.Constraint("DistanceY", 7, 3, -1, 1, 120.0))
sketch7.addConstraint(Sketcher.Constraint("DistanceX", 9, 3, -1, 1, 8.0))
sketch7.addConstraint(Sketcher.Constraint("DistanceY", -1, 1, 9, 3, 56.0))
sketch7.addConstraint(Sketcher.Constraint("DistanceX", 13, 3, -1, 1, 40.0))
sketch7.setExpression("Constraints[44]", "Params.sketch7_width")
sketch7.setExpression("Constraints[45]", "Params.sketch7_height")
sketch7.setExpression("Constraints[46]", "Params.sketch7_radius")
pocket2 = body.newObject("PartDesign::Pocket", "Pocket001")
pocket2.Profile = sketch7
pocket2.Type = "ThroughAll"

doc.recompute()
